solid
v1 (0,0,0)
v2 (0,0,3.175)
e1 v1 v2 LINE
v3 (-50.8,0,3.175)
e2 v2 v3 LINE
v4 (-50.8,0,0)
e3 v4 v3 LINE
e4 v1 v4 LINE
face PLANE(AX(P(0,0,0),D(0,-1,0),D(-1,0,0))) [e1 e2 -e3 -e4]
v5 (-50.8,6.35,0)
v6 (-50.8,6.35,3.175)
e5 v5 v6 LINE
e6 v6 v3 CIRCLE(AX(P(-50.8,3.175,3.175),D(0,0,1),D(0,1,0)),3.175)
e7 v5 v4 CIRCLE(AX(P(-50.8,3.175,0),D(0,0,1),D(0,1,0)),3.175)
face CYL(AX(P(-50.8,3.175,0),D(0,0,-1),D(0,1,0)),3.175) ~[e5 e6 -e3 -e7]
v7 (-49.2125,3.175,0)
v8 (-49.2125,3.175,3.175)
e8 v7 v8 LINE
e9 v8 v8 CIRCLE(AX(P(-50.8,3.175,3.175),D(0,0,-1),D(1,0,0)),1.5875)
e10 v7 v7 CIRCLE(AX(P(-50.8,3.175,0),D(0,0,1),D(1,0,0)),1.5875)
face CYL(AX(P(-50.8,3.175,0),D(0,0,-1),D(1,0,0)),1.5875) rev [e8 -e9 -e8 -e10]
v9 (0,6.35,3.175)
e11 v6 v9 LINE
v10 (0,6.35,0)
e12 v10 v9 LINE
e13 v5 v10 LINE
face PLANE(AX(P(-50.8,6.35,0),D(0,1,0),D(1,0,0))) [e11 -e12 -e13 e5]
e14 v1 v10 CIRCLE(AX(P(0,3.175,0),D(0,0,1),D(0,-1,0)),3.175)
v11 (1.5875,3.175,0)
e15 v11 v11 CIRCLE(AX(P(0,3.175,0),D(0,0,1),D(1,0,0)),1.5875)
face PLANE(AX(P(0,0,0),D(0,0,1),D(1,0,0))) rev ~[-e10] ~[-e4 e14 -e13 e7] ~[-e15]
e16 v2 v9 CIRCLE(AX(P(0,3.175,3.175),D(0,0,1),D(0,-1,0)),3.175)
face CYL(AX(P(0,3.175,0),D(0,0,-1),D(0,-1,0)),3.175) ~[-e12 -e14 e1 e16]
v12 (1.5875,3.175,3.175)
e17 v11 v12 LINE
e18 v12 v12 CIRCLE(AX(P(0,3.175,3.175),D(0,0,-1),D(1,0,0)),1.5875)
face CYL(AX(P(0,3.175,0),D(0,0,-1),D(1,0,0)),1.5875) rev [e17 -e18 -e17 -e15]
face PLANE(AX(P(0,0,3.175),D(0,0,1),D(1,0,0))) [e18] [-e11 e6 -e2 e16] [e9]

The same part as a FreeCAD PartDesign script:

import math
import FreeCAD as App
import Part
import Sketcher
from FreeCAD import Vector
Q = App.Units.Quantity

doc = App.newDocument("Part")
body = doc.addObject("PartDesign::Body", "Body")

# Sketch on XY plane
sketch1 = doc.addObject("Sketcher::SketchObject", "Sketch")
body.addObject(sketch1)
sketch1.AttachmentSupport = (doc.XY_Plane, [""])
sketch1.MapMode = "FlatFace"
sketch1.addGeometry(Part.LineSegment(Vector(-50.8, 0, 0), Vector(0, 0, 0)), False)
sketch1.addGeometry(Part.ArcOfCircle(Part.Circle(Vector(0, 3.175, 0), Vector(0, 0, 1), 3.175), math.radians(-90), math.radians(90)), False)
sketch1.addGeometry(Part.LineSegment(Vector(0, 6.35, 0), Vector(-50.8, 6.35, 0)), False)
sketch1.addGeometry(Part.ArcOfCircle(Part.Circle(Vector(-50.8, 3.175, 0), Vector(0, 0, 1), 3.175), math.radians(90), math.radians(270)), False)
sketch1.addConstraint(Sketcher.Constraint("Tangent", 0, 2, 1, 1))
sketch1.addConstraint(Sketcher.Constraint("Tangent", 1, 2, 2, 1))
sketch1.addConstraint(Sketcher.Constraint("Tangent", 2, 2, 3, 1))
sketch1.addConstraint(Sketcher.Constraint("Tangent", 3, 2, 0, 1))
sketch1.addConstraint(Sketcher.Constraint("Horizontal", 0))
sketch1.addConstraint(Sketcher.Constraint("Horizontal", 2))
sketch1.addConstraint(Sketcher.Constraint("Coincident", 0, 2, -1, 1))
sketch1.addConstraint(Sketcher.Constraint("DistanceX", 0, 1, 0, 2, Q("2 in")))
sketch1.addConstraint(Sketcher.Constraint("Radius", 1, Q("0.125 in")))
pad1 = doc.addObject("PartDesign::Pad", "Pad")
body.addObject(pad1)
pad1.Profile = sketch1
pad1.Length = Q("0.125 in")

# Sketch on XY plane
sketch2 = doc.addObject("Sketcher::SketchObject", "Sketch001")
body.addObject(sketch2)
sketch2.AttachmentSupport = (doc.XY_Plane, [""])
sketch2.MapMode = "FlatFace"
sketch2.addGeometry(Part.Circle(Vector(0, 3.175, 0), Vector(0, 0, 1), 1.5875), False)
sketch2.addGeometry(Part.Circle(Vector(-50.8, 3.175, 0), Vector(0, 0, 1), 1.5875), False)
sketch2.addConstraint(Sketcher.Constraint("Equal", 0, 1))
sketch2.addConstraint(Sketcher.Constraint("PointOnObject", 0, 3, -2))
sketch2.addConstraint(Sketcher.Constraint("Horizontal", 0, 3, 1, 3))
sketch2.addConstraint(Sketcher.Constraint("Diameter", 0, Q("0.125 in")))
sketch2.addConstraint(Sketcher.Constraint("DistanceX", 1, 3, -1, 1, Q("2 in")))
sketch2.addConstraint(Sketcher.Constraint("DistanceY", -1, 1, 0, 3, Q("0.125 in")))
pocket1 = doc.addObject("PartDesign::Pocket", "Pocket")
body.addObject(pocket1)
pocket1.Profile = sketch2
pocket1.Length = Q("0.125 in")
pocket1.Reversed = True

doc.recompute()
